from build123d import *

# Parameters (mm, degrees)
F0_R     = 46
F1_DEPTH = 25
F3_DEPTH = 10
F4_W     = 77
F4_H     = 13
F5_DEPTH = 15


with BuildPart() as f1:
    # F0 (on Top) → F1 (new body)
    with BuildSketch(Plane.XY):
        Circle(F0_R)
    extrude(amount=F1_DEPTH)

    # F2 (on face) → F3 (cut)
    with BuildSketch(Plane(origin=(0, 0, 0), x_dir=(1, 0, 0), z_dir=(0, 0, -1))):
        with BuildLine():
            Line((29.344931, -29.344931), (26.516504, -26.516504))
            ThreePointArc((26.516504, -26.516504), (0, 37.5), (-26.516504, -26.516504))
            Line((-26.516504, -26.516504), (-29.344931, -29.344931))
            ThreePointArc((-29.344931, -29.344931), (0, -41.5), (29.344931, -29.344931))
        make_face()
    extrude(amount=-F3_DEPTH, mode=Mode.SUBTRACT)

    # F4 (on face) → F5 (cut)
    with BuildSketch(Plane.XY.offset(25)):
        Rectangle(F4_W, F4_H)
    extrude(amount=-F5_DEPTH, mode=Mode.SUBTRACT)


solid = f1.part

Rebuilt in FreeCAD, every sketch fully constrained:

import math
import FreeCAD as App
import Part
import Sketcher

V = App.Vector

doc = App.newDocument("Part")
body = doc.addObject("PartDesign::Body", "Body")

# Sketch on XY plane
sketch1 = body.newObject("Sketcher::SketchObject", "Sketch")
sketch1.AttachmentSupport = (doc.getObject("XY_Plane"), [""])
sketch1.MapMode = "FlatFace"
sketch1.addGeometry(Part.Circle(V(0, 0, 0), V(0, 0, 1), 46), False)
sketch1.addConstraint(Sketcher.Constraint("Coincident", 0, 3, -1, 1))
sketch1.addConstraint(Sketcher.Constraint("Diameter", 0, 92.0))
pad1 = body.newObject("PartDesign::Pad", "Pad")
pad1.Profile = sketch1
pad1.Length = 25

# Sketch on XY plane
sketch2 = body.newObject("Sketcher::SketchObject", "Sketch001")
sketch2.AttachmentSupport = (doc.getObject("XY_Plane"), [""])
sketch2.MapMode = "FlatFace"
sketch2.addGeometry(Part.LineSegment(V(29.344931, 29.344931, 0), V(26.516504, 26.516504, 0)), False)
sketch2.addGeometry(Part.ArcOfCircle(Part.Circle(V(0, 0, 0), V(0, 0, 1), 37.5), math.radians(135), math.radians(405)), False)
sketch2.addGeometry(Part.LineSegment(V(-26.516504, 26.516504, 0), V(-29.344931, 29.344931, 0)), False)
sketch2.addGeometry(Part.ArcOfCircle(Part.Circle(V(0, 0.000002, 0), V(0, 0, 1), 41.499998), math.radians(44.999998), math.radians(135.000002)), False)
sketch2.addConstraint(Sketcher.Constraint("Coincident", 0, 2, 1, 2))
sketch2.addConstraint(Sketcher.Constraint("Coincident", 1, 1, 2, 1))
sketch2.addConstraint(Sketcher.Constraint("Coincident", 2, 2, 3, 2))
sketch2.addConstraint(Sketcher.Constraint("Coincident", 3, 1, 0, 1))
sketch2.addConstraint(Sketcher.Constraint("Coincident", 1, 3, -1, 1))
sketch2.addConstraint(Sketcher.Constraint("Coincident", 3, 3, -1, 1))
sketch2.addConstraint(Sketcher.Constraint("Perpendicular", 0, 2))
sketch2.addConstraint(Sketcher.Constraint("Horizontal", 0, 2, 1, 1))
sketch2.addConstraint(Sketcher.Constraint("Horizontal", 2, 2, 3, 1))
sketch2.addConstraint(Sketcher.Constraint("Radius", 1, 37.5))
sketch2.addConstraint(Sketcher.Constraint("Distance", 0, 4.0))
sketch2.addConstraint(Sketcher.Constraint("DistanceY", 3, 3, 0, 2, 26.516502))
pocket1 = body.newObject("PartDesign::Pocket", "Pocket")
pocket1.Profile = sketch2
pocket1.Length = 10
pocket1.Reversed = True

# Sketch on XY plane
sketch3 = body.newObject("Sketcher::SketchObject", "Sketch002")
sketch3.AttachmentSupport = (doc.getObject("XY_Plane"), [""])
sketch3.MapMode = "FlatFace"
sketch3.AttachmentOffset = App.Placement(V(0, 0, 25), App.Rotation())
sketch3.addGeometry(Part.LineSegment(V(-38.5, 6.5, 0), V(-38.5, -6.5, 0)), False)
sketch3.addGeometry(Part.LineSegment(V(-38.5, -6.5, 0), V(38.5, -6.5, 0)), False)
sketch3.addGeometry(Part.LineSegment(V(38.5, -6.5, 0), V(38.5, 6.5, 0)), False)
sketch3.addGeometry(Part.LineSegment(V(38.5, 6.5, 0), V(-38.5, 6.5, 0)), False)
sketch3.addConstraint(Sketcher.Constraint("Coincident", 0, 2, 1, 1))
sketch3.addConstraint(Sketcher.Constraint("Coincident", 1, 2, 2, 1))
sketch3.addConstraint(Sketcher.Constraint("Coincident", 2, 2, 3, 1))
sketch3.addConstraint(Sketcher.Constraint("Coincident", 3, 2, 0, 1))
sketch3.addConstraint(Sketcher.Constraint("Vertical", 0))
sketch3.addConstraint(Sketcher.Constraint("Horizontal", 1))
sketch3.addConstraint(Sketcher.Constraint("Vertical", 2))
sketch3.addConstraint(Sketcher.Constraint("Horizontal", 3))
sketch3.addConstraint(Sketcher.Constraint("Symmetric", 0, 2, 2, 2, -1, 1))
sketch3.addConstraint(Sketcher.Constraint("DistanceX", 1, 1, 1, 2, 77.0))
sketch3.addConstraint(Sketcher.Constraint("DistanceY", 0, 2, 0, 1, 13.0))
pocket2 = body.newObject("PartDesign::Pocket", "Pocket001")
pocket2.Profile = sketch3
pocket2.Length = 15

doc.recompute()
